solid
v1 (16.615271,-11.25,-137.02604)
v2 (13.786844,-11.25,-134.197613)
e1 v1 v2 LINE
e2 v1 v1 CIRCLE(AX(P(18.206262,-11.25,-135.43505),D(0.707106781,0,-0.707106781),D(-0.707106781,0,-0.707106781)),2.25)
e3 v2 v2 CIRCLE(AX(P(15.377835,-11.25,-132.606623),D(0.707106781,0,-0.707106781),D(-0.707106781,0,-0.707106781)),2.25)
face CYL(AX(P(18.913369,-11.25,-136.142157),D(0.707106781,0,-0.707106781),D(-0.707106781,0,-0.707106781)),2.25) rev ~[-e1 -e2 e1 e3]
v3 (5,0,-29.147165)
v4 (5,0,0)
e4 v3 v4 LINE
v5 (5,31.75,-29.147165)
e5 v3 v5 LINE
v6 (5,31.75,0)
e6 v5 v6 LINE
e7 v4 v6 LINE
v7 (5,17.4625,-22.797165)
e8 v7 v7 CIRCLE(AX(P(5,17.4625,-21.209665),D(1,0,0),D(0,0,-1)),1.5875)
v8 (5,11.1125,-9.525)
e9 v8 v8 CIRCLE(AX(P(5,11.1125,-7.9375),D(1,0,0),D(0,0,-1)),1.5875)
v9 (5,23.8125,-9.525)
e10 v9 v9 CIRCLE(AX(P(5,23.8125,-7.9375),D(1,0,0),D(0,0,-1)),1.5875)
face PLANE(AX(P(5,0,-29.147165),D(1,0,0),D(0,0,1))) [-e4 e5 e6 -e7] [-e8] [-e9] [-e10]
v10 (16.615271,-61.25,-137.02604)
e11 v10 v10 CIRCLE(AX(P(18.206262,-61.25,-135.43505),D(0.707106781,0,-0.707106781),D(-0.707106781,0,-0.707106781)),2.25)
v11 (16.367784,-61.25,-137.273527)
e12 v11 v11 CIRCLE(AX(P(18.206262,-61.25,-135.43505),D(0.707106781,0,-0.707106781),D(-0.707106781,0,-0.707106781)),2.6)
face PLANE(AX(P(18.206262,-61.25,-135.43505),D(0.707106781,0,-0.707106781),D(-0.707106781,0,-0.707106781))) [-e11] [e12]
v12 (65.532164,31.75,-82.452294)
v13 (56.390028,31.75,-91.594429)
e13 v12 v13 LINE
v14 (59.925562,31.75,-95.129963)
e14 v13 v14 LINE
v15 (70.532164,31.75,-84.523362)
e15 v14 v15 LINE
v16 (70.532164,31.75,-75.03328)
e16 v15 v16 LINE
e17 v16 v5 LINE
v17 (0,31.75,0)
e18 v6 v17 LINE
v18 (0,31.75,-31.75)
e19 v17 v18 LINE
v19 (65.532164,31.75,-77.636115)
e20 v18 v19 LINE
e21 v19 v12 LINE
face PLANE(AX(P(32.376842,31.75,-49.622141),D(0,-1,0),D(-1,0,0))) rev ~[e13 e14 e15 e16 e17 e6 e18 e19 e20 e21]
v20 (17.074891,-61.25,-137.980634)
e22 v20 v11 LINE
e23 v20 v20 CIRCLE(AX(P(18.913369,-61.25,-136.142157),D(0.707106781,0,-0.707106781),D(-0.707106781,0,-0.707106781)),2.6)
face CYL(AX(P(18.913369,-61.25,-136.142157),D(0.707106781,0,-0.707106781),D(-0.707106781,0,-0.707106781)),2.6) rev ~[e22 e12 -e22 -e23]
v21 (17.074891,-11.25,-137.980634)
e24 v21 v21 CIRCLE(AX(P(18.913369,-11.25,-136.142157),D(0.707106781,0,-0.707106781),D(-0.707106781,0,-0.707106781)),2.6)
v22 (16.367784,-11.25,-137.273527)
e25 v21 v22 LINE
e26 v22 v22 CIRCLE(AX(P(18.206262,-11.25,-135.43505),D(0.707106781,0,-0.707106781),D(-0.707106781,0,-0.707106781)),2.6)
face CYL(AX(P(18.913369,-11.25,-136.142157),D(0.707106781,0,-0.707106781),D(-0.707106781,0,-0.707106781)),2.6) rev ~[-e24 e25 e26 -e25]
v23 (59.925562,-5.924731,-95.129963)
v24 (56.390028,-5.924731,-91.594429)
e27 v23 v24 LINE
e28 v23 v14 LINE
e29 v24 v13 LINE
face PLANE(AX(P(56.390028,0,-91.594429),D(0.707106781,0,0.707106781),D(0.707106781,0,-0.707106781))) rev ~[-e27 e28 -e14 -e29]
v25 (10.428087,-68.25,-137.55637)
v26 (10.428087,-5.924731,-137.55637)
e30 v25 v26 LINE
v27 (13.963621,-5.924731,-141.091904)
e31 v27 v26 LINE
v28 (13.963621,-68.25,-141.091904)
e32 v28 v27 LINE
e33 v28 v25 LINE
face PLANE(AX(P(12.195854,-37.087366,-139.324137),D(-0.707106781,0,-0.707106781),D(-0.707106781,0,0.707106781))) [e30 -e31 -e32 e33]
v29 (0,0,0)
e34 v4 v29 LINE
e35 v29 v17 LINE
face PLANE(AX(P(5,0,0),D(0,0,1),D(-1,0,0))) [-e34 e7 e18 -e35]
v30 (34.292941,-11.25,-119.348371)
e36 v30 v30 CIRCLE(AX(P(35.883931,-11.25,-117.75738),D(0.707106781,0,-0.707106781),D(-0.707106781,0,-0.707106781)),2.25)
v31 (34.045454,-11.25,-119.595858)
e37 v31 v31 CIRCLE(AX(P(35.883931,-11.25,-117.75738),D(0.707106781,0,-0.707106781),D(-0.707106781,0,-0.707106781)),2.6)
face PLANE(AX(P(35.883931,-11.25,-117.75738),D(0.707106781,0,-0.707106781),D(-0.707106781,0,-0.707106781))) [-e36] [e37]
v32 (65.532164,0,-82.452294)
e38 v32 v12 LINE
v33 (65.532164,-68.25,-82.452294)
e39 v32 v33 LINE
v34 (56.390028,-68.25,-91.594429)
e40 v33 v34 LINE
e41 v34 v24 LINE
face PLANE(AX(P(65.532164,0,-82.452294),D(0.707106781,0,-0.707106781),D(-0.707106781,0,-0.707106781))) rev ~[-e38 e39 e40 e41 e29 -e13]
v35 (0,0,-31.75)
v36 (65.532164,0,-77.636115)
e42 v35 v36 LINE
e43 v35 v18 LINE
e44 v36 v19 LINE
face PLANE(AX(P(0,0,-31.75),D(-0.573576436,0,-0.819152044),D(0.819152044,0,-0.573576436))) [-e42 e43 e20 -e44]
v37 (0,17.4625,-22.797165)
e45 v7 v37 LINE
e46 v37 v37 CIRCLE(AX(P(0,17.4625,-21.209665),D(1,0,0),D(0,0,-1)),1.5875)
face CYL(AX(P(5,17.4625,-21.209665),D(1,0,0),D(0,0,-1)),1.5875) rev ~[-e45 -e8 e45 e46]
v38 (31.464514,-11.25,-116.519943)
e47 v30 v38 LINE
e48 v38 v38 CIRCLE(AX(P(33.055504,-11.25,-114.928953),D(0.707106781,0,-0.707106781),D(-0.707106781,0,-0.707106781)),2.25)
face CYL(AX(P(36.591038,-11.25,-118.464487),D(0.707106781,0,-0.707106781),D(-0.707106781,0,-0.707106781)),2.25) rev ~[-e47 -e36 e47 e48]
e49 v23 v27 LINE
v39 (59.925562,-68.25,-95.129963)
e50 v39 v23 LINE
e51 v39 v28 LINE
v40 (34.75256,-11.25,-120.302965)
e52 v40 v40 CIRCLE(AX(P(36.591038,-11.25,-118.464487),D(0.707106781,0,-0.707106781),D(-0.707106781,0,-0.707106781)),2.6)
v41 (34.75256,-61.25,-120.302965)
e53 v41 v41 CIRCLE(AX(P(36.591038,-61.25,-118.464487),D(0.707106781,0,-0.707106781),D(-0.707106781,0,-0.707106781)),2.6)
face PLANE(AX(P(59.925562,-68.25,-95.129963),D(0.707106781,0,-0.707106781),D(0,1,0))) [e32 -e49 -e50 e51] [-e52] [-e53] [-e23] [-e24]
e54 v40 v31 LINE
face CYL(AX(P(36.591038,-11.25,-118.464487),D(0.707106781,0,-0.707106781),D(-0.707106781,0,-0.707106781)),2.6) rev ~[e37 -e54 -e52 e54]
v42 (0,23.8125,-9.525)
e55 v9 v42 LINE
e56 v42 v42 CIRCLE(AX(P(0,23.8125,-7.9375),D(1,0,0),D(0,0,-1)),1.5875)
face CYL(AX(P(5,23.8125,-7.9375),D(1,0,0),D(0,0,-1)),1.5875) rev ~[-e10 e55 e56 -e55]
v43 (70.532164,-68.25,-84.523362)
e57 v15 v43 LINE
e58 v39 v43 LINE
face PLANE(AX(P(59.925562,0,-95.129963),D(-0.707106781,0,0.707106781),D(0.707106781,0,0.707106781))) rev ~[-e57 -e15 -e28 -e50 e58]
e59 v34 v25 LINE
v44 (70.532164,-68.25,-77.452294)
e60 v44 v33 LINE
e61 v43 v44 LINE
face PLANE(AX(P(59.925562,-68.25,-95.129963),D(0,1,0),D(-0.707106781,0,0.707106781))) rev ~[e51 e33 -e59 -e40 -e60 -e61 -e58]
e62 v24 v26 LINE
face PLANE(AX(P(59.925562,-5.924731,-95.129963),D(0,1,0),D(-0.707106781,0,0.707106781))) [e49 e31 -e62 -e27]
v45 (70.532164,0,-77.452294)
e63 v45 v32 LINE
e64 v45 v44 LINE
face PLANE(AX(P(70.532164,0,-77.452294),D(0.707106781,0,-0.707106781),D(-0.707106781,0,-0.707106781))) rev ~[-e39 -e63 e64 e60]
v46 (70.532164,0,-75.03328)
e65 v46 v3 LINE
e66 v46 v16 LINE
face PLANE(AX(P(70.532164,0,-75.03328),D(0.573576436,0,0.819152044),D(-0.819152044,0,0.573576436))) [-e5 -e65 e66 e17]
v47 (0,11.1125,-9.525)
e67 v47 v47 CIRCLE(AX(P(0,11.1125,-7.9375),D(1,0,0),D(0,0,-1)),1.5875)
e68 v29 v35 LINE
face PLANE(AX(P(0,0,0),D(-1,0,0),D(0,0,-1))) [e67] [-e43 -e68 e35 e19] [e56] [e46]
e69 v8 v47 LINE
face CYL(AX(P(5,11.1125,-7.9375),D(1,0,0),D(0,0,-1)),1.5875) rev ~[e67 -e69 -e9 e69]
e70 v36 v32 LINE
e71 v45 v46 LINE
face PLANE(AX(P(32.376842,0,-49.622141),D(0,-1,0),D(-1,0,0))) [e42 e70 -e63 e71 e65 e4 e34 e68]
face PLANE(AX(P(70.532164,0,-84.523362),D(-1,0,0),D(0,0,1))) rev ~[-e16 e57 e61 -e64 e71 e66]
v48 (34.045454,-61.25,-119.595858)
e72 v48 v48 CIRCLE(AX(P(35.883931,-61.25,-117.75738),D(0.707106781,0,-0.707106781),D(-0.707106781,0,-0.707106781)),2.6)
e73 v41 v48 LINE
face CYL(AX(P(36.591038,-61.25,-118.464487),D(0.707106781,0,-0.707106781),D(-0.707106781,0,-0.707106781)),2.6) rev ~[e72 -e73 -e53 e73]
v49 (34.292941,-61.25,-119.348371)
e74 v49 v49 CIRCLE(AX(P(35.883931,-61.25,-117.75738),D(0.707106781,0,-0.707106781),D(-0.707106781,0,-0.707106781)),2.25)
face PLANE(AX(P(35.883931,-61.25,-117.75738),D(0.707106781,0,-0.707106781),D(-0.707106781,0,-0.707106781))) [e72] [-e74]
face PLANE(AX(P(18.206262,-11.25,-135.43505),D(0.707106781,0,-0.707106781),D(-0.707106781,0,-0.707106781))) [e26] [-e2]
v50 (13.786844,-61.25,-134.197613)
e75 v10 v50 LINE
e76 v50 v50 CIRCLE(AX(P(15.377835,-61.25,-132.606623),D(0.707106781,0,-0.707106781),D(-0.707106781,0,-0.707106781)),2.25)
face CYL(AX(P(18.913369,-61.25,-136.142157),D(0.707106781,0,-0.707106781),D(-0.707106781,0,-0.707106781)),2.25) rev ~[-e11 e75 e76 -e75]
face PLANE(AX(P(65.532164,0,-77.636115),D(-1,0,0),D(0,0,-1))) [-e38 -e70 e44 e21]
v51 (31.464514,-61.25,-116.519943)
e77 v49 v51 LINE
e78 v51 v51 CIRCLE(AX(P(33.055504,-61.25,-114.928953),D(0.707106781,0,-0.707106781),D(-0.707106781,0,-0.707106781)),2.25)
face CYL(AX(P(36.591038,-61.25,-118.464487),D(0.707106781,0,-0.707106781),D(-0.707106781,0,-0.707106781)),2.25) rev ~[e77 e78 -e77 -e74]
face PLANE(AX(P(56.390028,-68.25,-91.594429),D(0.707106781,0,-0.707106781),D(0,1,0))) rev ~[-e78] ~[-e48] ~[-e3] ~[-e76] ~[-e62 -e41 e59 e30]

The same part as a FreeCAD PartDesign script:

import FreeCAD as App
import Part
import Sketcher

V = App.Vector
Q = App.Units.Quantity

doc = App.newDocument("Part")
body = doc.addObject("PartDesign::Body", "Body")

# Sketch on XZ plane
sketch1 = body.newObject("Sketcher::SketchObject", "Sketch")
sketch1.AttachmentSupport = (doc.getObject("XZ_Plane"), [""])
sketch1.MapMode = "FlatFace"
sketch1.addGeometry([
    Part.LineSegment(V(0, -31.8, 0), V(0, 0, 0)),  # 0
    Part.LineSegment(V(0, 0, 0), V(5, 0, 0)),  # 1
    Part.LineSegment(V(5, 0, 0), V(5, -29.1, 0)),  # 2
    Part.LineSegment(V(5, -29.1, 0), V(70.5, -75, 0)),  # 3
    Part.LineSegment(V(70.5, -75, 0), V(70.5, -84.5, 0)),  # 4
    Part.LineSegment(V(70.5, -84.5, 0), V(59.9, -95.1, 0)),  # 5
    Part.LineSegment(V(59.9, -95.1, 0), V(56.4, -91.6, 0)),  # 6
    Part.LineSegment(V(56.4, -91.6, 0), V(65.5, -82.5, 0)),  # 7
    Part.LineSegment(V(65.5, -82.5, 0), V(65.5, -77.6, 0)),  # 8
    Part.LineSegment(V(65.5, -77.6, 0), V(0, -31.8, 0)),  # 9
], False)
sketch1.addConstraint([
    Sketcher.Constraint("Coincident", 0, 2, 1, 1),
    Sketcher.Constraint("Coincident", 1, 2, 2, 1),
    Sketcher.Constraint("Coincident", 2, 2, 3, 1),
    Sketcher.Constraint("Coincident", 3, 2, 4, 1),
    Sketcher.Constraint("Coincident", 4, 2, 5, 1),
    Sketcher.Constraint("Coincident", 5, 2, 6, 1),
    Sketcher.Constraint("Coincident", 6, 2, 7, 1),
    Sketcher.Constraint("Coincident", 7, 2, 8, 1),
    Sketcher.Constraint("Coincident", 8, 2, 9, 1),
    Sketcher.Constraint("Coincident", 9, 2, 0, 1),
    Sketcher.Constraint("Vertical", 0),
    Sketcher.Constraint("Horizontal", 1),
    Sketcher.Constraint("Vertical", 2),
    Sketcher.Constraint("Vertical", 4),
    Sketcher.Constraint("Vertical", 8),
    Sketcher.Constraint("Coincident", 0, 2, -1, 1),
    Sketcher.Constraint("Perpendicular", 5, 6),
    Sketcher.Constraint("Perpendicular", 6, 7),
    Sketcher.Constraint("Parallel", 3, 9),
    Sketcher.Constraint("Equal", 3, 9),
    Sketcher.Constraint("DistanceX", 1, 1, 1, 2, Q("5 mm")),
    Sketcher.Constraint("Angle", 3, Q("-35 deg")),
    Sketcher.Constraint("Angle", 5, Q("-135 deg")),
    Sketcher.Constraint("Distance", 3, Q("80 mm")),
    Sketcher.Constraint("Distance", 5, Q("15 mm")),
    Sketcher.Constraint("Distance", 6, Q("5 mm")),
    Sketcher.Constraint("DistanceY", 0, 1, 0, 2, Q("31.75 mm")),
    Sketcher.Constraint("DistanceY", 4, 2, 4, 1, Q("9.490082 mm")),
    Sketcher.Constraint("DistanceY", 8, 1, 8, 2, Q("4.816179 mm")),
])
pad1 = body.newObject("PartDesign::Pad", "Pad")
pad1.Profile = sketch1
pad1.Length = 31.75
pad1.Reversed = True

# Sketch on XZ plane
sketch2 = body.newObject("Sketcher::SketchObject", "Sketch001")
sketch2.AttachmentSupport = (doc.getObject("XZ_Plane"), [""])
sketch2.MapMode = "FlatFace"
sketch2.addGeometry([
    Part.LineSegment(V(60, -95, 0), V(71, -85, 0)),  # 0
    Part.LineSegment(V(71, -85, 0), V(71, -77, 0)),  # 1
    Part.LineSegment(V(71, -77, 0), V(66, -82, 0)),  # 2
    Part.LineSegment(V(66, -82, 0), V(56, -92, 0)),  # 3
    Part.LineSegment(V(56, -92, 0), V(60, -95, 0)),  # 4
], False)
sketch2.addConstraint([
    Sketcher.Constraint("Coincident", 0, 2, 1, 1),
    Sketcher.Constraint("Coincident", 1, 2, 2, 1),
    Sketcher.Constraint("Coincident", 2, 2, 3, 1),
    Sketcher.Constraint("Coincident", 3, 2, 4, 1),
    Sketcher.Constraint("Coincident", 4, 2, 0, 1),
    Sketcher.Constraint("Vertical", 1),
    Sketcher.Constraint("Parallel", 0, 2),
    Sketcher.Constraint("Parallel", 2, 3),
    Sketcher.Constraint("Perpendicular", 3, 4),
    Sketcher.Constraint("Angle", 0, Q("45 deg")),
    Sketcher.Constraint("Distance", 0, Q("15 mm")),
    Sketcher.Constraint("Distance", 4, Q("5 mm")),
    Sketcher.Constraint("DistanceX", 2, 2, 0, 2, Q("5 mm")),
    Sketcher.Constraint("DistanceY", 0, 2, -1, 1, Q("84.523362 mm")),
    Sketcher.Constraint("DistanceX", -1, 1, 4, 2, Q("59.925562 mm")),
])
pad2 = body.newObject("PartDesign::Pad", "Pad001")
pad2.Profile = sketch2
pad2.Length = 68.25

# Sketch on an angled plane
sketch3 = body.newObject("Sketcher::SketchObject", "Sketch002")
sketch3.Placement = App.Placement(V(-17.602201, 0, -17.602201), App.Rotation(V(-0.707106781, 0, 0.707106781), V(0, 0.999999999, 0), V(-0.707106781, 0, -0.707106781), "ZXY"))
sketch3.addGeometry([
    Part.LineSegment(V(-109.6, -5.9, 0), V(-109.6, -68.2, 0)),
    Part.LineSegment(V(-109.6, -68.2, 0), V(-104.6, -68.2, 0)),
    Part.LineSegment(V(-104.6, -68.2, 0), V(-104.6, -5.9, 0)),
    Part.LineSegment(V(-104.6, -5.9, 0), V(-109.6, -5.9, 0)),
], False)
sketch3.addConstraint([
    Sketcher.Constraint("Coincident", 0, 2, 1, 1),
    Sketcher.Constraint("Coincident", 1, 2, 2, 1),
    Sketcher.Constraint("Coincident", 2, 2, 3, 1),
    Sketcher.Constraint("Coincident", 3, 2, 0, 1),
    Sketcher.Constraint("Vertical", 0),
    Sketcher.Constraint("Horizontal", 1),
    Sketcher.Constraint("Vertical", 2),
    Sketcher.Constraint("Horizontal", 3),
    Sketcher.Constraint("DistanceX", 1, 1, 1, 2, Q("5 mm")),
    Sketcher.Constraint("DistanceY", 0, 2, -1, 1, Q("68.25 mm")),
    Sketcher.Constraint("DistanceY", 0, 2, 0, 1, Q("62.325269 mm")),
    Sketcher.Constraint("DistanceX", 0, 2, -1, 1, Q("109.640813 mm")),
])
pad3 = body.newObject("PartDesign::Pad", "Pad002")
pad3.Profile = sketch3
pad3.Length = 65

# Sketch on an angled plane
sketch4 = body.newObject("Sketcher::SketchObject", "Sketch003")
sketch4.Placement = App.Placement(V(77.527763, 0, -77.527763), App.Rotation(V(-0.707106781, 0, -0.707106781), V(0, 0.999999999, 0), V(0.707106781, 0, -0.707106781), "ZXY"))
sketch4.addGeometry([
    Part.Circle(V(82.9, -11.2, 0), V(0, 0, 1), 2.2),
    Part.Circle(V(57.9, -11.2, 0), V(0, 0, 1), 2.2),
    Part.Circle(V(82.9, -61.2, 0), V(0, 0, 1), 2.2),
    Part.Circle(V(57.9, -61.2, 0), V(0, 0, 1), 2.2),
], False)
sketch4.addConstraint([
    Sketcher.Constraint("Equal", 0, 1),
    Sketcher.Constraint("Equal", 1, 2),
    Sketcher.Constraint("Equal", 2, 3),
    Sketcher.Constraint("Horizontal", 0, 3, 1, 3),
    Sketcher.Constraint("Horizontal", 2, 3, 3, 3),
    Sketcher.Constraint("Vertical", 0, 3, 2, 3),
    Sketcher.Constraint("Vertical", 1, 3, 3, 3),
    Sketcher.Constraint("Diameter", 0, Q("4.5 mm")),
    Sketcher.Constraint("DistanceX", 1, 3, 0, 3, Q("25 mm")),
    Sketcher.Constraint("DistanceY", 2, 3, 0, 3, Q("50 mm")),
    Sketcher.Constraint("DistanceY", 0, 3, -1, 1, Q("11.25 mm")),
    Sketcher.Constraint("DistanceX", -1, 1, 0, 3, Q("82.893271 mm")),
])
pocket1 = body.newObject("PartDesign::Pocket", "Pocket")
pocket1.Profile = sketch4
pocket1.Type = "ThroughAll"

# Sketch on YZ plane
sketch5 = body.newObject("Sketcher::SketchObject", "Sketch004")
sketch5.AttachmentSupport = (doc.getObject("YZ_Plane"), [""])
sketch5.MapMode = "FlatFace"
sketch5.AttachmentOffset = App.Placement(V(0, 0, 5), App.Rotation())
sketch5.addGeometry([
    Part.Circle(V(23.8, -7.9, 0), V(0, 0, 1), 1.6),
    Part.Circle(V(17.5, -21.2, 0), V(0, 0, 1), 1.6),
    Part.Circle(V(11.1, -7.9, 0), V(0, 0, 1), 1.6),
], False)
sketch5.addConstraint([
    Sketcher.Constraint("Equal", 0, 1),
    Sketcher.Constraint("Equal", 1, 2),
    Sketcher.Constraint("Horizontal", 0, 3, 2, 3),
    Sketcher.Constraint("Diameter", 0, Q("3.175 mm")),
    Sketcher.Constraint("DistanceX", 2, 3, 0, 3, Q("12.7 mm")),
    Sketcher.Constraint("DistanceX", 1, 3, 0, 3, Q("6.35 mm")),
    Sketcher.Constraint("DistanceX", -1, 1, 0, 3, Q("23.8125 mm")),
    Sketcher.Constraint("DistanceY", 0, 3, -1, 1, Q("7.9375 mm")),
    Sketcher.Constraint("DistanceY", 1, 3, -1, 1, Q("21.209665 mm")),
])
pocket2 = body.newObject("PartDesign::Pocket", "Pocket001")
pocket2.Profile = sketch5
pocket2.Type = "ThroughAll"

# Sketch on an angled plane
sketch6 = body.newObject("Sketcher::SketchObject", "Sketch005")
sketch6.Placement = App.Placement(V(77.527763, 0, -77.527763), App.Rotation(V(-0.707106781, 0, -0.707106781), V(0, 0.999999999, 0), V(0.707106781, 0, -0.707106781), "ZXY"))
sketch6.addGeometry([
    Part.Circle(V(57.9, -11.2, 0), V(0, 0, 1), 2.6),
    Part.Circle(V(82.9, -11.2, 0), V(0, 0, 1), 2.6),
    Part.Circle(V(82.9, -61.2, 0), V(0, 0, 1), 2.6),
    Part.Circle(V(57.9, -61.2, 0), V(0, 0, 1), 2.6),
], False)
sketch6.addConstraint([
    Sketcher.Constraint("Equal", 0, 1),
    Sketcher.Constraint("Equal", 1, 2),
    Sketcher.Constraint("Equal", 2, 3),
    Sketcher.Constraint("Horizontal", 0, 3, 1, 3),
    Sketcher.Constraint("Horizontal", 2, 3, 3, 3),
    Sketcher.Constraint("Vertical", 1, 3, 2, 3),
    Sketcher.Constraint("Vertical", 0, 3, 3, 3),
    Sketcher.Constraint("Diameter", 0, Q("5.2 mm")),
    Sketcher.Constraint("DistanceX", 0, 3, 1, 3, Q("25 mm")),
    Sketcher.Constraint("DistanceY", 2, 3, 1, 3, Q("50 mm")),
    Sketcher.Constraint("DistanceY", 0, 3, -1, 1, Q("11.25 mm")),
    Sketcher.Constraint("DistanceX", -1, 1, 0, 3, Q("57.893271 mm")),
])
pocket3 = body.newObject("PartDesign::Pocket", "Pocket002")
pocket3.Profile = sketch6
pocket3.Length = 1

doc.recompute()
